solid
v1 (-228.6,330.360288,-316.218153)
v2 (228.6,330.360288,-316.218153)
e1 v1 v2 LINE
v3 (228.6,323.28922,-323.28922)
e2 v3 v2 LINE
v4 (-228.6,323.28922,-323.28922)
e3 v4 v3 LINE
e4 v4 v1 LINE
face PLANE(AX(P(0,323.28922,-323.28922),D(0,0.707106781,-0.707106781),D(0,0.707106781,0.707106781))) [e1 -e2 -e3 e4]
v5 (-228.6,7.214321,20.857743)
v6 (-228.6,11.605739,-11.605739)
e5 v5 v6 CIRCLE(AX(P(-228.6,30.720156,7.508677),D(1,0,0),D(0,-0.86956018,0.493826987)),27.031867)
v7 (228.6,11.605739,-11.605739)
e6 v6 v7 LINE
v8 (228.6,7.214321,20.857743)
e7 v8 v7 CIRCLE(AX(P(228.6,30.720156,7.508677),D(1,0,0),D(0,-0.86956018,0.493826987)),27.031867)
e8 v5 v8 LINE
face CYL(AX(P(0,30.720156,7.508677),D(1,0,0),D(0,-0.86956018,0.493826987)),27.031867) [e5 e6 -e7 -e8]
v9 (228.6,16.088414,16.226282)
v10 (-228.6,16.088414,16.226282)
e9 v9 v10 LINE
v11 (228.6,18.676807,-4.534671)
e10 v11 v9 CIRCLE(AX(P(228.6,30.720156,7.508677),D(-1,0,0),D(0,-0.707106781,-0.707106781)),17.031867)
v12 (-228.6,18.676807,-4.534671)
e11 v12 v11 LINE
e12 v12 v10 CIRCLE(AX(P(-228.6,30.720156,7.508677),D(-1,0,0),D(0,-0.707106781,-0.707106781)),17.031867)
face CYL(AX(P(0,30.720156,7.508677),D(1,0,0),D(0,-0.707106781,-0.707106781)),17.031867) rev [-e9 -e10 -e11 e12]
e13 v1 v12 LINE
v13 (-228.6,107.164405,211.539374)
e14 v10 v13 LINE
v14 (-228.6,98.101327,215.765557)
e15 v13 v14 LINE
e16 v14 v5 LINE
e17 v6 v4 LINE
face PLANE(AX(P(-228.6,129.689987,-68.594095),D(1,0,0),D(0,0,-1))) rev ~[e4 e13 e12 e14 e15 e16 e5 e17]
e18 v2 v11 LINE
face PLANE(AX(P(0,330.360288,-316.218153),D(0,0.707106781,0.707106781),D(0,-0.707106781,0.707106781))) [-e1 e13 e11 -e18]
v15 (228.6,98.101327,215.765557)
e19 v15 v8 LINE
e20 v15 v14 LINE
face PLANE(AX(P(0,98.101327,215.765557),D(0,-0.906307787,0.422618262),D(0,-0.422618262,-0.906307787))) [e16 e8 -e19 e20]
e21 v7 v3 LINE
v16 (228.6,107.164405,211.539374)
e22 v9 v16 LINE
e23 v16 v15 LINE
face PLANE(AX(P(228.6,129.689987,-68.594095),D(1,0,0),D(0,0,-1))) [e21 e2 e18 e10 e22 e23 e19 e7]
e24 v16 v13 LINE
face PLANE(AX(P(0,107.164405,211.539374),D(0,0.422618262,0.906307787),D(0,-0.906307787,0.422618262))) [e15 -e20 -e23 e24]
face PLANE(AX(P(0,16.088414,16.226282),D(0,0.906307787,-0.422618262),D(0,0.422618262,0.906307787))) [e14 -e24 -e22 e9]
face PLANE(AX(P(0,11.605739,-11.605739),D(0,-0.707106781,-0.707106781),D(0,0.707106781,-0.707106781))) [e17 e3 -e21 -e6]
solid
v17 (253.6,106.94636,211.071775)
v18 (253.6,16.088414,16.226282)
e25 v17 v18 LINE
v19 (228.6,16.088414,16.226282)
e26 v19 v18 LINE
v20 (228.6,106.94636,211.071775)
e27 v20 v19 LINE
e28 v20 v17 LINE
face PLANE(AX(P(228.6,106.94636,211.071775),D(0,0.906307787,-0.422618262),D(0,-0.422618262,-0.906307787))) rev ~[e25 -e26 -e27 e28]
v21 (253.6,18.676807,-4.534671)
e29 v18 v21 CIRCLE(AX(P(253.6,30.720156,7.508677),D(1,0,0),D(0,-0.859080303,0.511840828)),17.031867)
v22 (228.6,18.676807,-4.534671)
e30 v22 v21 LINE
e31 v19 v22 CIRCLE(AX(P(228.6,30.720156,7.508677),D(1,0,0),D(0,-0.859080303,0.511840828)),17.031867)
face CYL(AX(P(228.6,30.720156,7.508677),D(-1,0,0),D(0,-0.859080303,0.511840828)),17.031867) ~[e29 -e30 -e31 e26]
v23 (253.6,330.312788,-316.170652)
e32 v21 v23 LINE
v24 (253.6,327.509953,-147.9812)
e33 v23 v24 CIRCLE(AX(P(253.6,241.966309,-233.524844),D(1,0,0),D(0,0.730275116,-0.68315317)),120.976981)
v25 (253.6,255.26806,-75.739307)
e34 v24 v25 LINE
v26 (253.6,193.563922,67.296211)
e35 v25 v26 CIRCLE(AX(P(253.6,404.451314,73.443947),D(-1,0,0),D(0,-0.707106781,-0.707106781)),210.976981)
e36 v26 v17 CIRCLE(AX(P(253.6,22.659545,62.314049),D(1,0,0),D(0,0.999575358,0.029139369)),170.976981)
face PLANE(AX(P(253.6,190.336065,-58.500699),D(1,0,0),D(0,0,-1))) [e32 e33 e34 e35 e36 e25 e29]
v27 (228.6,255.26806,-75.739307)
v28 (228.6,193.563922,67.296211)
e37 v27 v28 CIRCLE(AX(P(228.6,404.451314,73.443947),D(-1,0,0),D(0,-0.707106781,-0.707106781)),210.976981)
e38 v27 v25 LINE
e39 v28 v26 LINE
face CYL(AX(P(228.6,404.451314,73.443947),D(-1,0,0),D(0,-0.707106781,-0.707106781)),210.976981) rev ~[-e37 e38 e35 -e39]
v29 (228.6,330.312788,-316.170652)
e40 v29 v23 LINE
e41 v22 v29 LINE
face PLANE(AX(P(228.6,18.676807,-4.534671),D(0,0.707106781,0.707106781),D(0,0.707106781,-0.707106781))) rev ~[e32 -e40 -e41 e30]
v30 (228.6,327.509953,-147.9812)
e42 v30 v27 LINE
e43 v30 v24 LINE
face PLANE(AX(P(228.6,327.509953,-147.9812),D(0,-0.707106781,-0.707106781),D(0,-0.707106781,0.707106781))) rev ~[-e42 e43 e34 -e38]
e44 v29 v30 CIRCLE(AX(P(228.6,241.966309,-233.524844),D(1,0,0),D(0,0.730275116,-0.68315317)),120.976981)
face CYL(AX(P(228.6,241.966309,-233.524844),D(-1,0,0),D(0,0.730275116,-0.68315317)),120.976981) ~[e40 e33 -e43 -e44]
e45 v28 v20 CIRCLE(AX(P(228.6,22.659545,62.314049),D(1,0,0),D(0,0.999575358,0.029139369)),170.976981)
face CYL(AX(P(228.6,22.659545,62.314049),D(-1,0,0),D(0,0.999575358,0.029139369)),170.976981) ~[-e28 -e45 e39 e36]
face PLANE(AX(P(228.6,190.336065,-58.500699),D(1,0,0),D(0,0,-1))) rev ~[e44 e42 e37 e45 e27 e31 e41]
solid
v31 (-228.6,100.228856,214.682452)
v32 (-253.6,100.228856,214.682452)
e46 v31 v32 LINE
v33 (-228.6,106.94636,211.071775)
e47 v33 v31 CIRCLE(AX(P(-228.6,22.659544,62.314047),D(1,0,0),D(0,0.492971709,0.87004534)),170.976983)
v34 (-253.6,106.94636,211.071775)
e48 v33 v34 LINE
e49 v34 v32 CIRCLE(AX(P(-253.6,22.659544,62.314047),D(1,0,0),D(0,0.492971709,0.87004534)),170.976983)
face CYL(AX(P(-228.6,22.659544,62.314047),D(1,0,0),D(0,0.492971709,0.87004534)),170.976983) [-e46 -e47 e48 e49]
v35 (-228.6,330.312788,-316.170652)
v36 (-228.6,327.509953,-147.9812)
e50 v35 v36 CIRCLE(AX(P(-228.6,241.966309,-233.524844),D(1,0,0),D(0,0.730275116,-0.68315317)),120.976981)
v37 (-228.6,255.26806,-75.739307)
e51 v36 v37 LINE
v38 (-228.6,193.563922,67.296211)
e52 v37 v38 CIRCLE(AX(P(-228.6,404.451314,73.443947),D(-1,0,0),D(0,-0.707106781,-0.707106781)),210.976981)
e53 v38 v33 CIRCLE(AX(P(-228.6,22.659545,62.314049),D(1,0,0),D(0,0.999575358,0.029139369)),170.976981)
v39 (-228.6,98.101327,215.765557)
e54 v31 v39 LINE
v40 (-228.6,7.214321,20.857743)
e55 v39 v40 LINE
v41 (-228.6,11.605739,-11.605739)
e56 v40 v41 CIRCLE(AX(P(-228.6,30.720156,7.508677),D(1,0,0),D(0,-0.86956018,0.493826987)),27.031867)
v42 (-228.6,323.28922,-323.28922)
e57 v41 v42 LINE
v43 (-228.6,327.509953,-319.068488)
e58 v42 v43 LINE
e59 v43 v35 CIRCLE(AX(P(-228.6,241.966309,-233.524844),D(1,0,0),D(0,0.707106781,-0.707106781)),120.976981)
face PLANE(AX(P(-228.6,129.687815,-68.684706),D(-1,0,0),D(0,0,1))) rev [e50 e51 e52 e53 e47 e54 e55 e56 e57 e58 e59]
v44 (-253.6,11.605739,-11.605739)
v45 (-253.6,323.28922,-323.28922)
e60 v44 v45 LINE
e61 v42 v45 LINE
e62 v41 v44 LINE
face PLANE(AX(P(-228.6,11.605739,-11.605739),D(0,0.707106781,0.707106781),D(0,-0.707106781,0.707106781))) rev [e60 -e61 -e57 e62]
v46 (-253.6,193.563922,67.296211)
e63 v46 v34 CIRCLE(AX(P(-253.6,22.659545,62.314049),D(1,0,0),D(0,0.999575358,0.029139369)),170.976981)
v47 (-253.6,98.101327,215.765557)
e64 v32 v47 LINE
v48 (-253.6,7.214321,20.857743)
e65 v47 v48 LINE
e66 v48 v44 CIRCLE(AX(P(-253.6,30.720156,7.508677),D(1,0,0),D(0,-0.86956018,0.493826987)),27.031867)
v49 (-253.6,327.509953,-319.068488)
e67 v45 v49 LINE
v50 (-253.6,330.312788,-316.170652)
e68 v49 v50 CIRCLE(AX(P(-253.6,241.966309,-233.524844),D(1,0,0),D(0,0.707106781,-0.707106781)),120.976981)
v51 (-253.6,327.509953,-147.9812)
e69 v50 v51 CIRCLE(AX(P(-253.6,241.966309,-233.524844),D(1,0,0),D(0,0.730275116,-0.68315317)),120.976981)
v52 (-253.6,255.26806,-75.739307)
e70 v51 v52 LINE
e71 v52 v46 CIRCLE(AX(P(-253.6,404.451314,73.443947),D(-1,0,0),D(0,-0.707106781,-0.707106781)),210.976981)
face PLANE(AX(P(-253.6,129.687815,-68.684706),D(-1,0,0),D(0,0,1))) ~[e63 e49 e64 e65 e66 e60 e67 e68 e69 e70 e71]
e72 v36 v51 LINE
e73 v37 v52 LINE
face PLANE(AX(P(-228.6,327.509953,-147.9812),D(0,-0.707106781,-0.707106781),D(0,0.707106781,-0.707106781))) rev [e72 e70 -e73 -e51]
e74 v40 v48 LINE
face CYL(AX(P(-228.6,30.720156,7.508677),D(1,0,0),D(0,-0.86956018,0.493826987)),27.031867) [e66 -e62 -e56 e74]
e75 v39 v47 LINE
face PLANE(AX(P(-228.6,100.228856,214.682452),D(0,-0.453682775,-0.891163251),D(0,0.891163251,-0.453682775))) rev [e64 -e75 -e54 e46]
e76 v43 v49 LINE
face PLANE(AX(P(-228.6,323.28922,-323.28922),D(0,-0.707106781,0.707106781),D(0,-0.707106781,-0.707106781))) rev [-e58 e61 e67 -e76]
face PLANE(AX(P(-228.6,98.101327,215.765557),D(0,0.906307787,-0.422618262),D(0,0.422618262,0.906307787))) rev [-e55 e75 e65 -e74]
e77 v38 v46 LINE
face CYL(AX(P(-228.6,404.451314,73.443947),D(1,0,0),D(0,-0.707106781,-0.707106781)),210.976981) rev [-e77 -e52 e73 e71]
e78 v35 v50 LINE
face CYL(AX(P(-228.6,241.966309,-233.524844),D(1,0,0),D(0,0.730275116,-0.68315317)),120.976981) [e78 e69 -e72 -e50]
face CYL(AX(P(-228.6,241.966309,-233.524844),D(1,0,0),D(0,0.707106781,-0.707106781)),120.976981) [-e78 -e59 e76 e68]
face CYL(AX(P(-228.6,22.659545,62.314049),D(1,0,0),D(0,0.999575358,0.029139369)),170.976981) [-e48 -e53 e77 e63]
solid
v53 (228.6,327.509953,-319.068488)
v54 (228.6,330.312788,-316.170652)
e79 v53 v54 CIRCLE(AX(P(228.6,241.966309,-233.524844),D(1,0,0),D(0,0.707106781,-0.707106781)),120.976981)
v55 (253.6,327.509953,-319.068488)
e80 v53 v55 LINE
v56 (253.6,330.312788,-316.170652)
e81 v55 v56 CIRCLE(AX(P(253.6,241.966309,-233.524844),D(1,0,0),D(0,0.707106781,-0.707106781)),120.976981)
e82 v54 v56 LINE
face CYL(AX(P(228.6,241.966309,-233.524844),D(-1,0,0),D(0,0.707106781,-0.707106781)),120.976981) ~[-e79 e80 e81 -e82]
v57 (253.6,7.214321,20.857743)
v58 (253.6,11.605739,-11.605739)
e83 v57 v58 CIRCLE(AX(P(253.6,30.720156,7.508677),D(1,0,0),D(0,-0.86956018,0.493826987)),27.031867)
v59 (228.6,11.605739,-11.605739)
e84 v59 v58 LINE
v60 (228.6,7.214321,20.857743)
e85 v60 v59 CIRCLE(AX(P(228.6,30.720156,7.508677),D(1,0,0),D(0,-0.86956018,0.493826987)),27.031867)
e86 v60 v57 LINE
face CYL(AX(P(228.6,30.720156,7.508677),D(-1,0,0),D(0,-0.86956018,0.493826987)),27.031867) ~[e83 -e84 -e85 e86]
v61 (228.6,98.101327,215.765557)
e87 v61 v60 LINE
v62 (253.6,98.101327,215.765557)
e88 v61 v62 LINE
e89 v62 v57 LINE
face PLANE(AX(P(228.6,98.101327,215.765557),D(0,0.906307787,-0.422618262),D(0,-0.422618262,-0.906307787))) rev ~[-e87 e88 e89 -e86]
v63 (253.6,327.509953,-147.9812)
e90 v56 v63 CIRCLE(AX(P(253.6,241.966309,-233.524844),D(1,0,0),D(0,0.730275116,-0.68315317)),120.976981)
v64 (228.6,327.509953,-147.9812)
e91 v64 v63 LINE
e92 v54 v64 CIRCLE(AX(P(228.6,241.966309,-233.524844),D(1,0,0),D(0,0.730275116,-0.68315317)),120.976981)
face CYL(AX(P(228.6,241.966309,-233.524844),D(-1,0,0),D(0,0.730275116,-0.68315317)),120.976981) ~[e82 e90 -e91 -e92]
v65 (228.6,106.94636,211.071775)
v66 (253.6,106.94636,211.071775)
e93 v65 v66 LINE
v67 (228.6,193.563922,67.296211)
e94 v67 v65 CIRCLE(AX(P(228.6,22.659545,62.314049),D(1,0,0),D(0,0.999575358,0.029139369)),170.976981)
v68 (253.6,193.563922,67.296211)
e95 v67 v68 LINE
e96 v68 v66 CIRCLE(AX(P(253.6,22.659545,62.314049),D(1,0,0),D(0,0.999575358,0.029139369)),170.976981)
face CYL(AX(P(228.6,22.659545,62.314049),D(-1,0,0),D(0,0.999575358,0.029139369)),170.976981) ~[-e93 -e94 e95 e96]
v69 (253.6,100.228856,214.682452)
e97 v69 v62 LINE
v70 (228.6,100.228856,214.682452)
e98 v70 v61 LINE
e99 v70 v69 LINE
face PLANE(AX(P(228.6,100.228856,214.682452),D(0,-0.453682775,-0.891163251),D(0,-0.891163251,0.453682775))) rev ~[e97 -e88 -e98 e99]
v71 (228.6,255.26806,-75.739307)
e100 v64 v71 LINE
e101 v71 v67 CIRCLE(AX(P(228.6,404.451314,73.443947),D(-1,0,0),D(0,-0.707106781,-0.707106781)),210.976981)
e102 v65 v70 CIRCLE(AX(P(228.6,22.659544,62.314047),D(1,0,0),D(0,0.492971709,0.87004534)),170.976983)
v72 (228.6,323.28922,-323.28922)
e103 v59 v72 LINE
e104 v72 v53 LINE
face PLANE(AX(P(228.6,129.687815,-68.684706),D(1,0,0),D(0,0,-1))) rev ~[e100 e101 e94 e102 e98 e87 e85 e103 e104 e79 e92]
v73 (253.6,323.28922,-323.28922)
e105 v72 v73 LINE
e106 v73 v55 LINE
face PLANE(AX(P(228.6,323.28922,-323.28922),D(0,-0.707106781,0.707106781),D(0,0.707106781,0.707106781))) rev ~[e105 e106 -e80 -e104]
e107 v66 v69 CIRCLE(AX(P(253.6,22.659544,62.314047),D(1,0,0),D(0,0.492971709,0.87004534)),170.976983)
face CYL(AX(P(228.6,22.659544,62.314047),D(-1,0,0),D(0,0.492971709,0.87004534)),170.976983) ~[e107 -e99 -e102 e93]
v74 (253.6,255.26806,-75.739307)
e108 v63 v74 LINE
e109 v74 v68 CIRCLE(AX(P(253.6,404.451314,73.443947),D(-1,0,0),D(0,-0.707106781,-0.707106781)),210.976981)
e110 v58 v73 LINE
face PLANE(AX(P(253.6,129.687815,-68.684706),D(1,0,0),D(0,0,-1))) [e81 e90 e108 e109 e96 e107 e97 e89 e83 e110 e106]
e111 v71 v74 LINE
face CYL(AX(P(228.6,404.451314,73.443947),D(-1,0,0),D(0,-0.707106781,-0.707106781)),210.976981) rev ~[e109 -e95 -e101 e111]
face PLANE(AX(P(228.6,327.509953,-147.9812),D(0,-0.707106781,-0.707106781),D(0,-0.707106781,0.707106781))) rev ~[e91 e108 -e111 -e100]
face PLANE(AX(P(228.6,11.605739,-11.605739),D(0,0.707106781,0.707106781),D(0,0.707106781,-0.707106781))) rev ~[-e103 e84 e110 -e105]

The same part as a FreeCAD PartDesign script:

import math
import FreeCAD as App
import Part
import Sketcher
from FreeCAD import Vector
Q = App.Units.Quantity

doc = App.newDocument("Part")
body = doc.addObject("PartDesign::Body", "Body")

# Sketch on YZ plane
sketch1 = doc.addObject("Sketcher::SketchObject", "Sketch")
body.addObject(sketch1)
sketch1.AttachmentSupport = (doc.YZ_Plane, [""])
sketch1.MapMode = "FlatFace"
sketch1.addGeometry([
    Part.LineSegment(Vector(98.101327, 215.765557, 0), Vector(7.214321, 20.857743, 0)),  # 0
    Part.ArcOfCircle(Part.Circle(Vector(30.720156, 7.508677, 0), Vector(0, 0, 1), 27.031867), math.radians(150.40757), math.radians(225)),  # 1
    Part.LineSegment(Vector(11.605739, -11.605739, 0), Vector(323.28922, -323.28922, 0)),  # 2
    Part.LineSegment(Vector(323.28922, -323.28922, 0), Vector(330.360288, -316.218153, 0)),  # 3
    Part.LineSegment(Vector(330.360288, -316.218153, 0), Vector(18.676807, -4.534671, 0)),  # 4
    Part.ArcOfCircle(Part.Circle(Vector(30.720156, 7.508677, 0), Vector(0, 0, 1), 17.031867), math.radians(149.213476), math.radians(225)),  # 5
    Part.LineSegment(Vector(16.088414, 16.226282, 0), Vector(107.164405, 211.539374, 0)),  # 6
    Part.LineSegment(Vector(107.164405, 211.539374, 0), Vector(98.101327, 215.765557, 0)),  # 7
], False)
sketch1.addConstraint([
    Sketcher.Constraint("Coincident", 0, 2, 1, 1),
    Sketcher.Constraint("Tangent", 1, 2, 2, 1),
    Sketcher.Constraint("Coincident", 2, 2, 3, 1),
    Sketcher.Constraint("Coincident", 3, 2, 4, 1),
    Sketcher.Constraint("Tangent", 4, 2, 5, 2),
    Sketcher.Constraint("Coincident", 5, 1, 6, 1),
    Sketcher.Constraint("Coincident", 6, 2, 7, 1),
    Sketcher.Constraint("Coincident", 7, 2, 0, 1),
    Sketcher.Constraint("Coincident", 5, 3, 1, 3),
    Sketcher.Constraint("Perpendicular", 2, 3),
    Sketcher.Constraint("Perpendicular", 3, 4),
    Sketcher.Constraint("Parallel", 0, 6),
    Sketcher.Constraint("Perpendicular", 6, 7),
    Sketcher.Constraint("Equal", 3, 7),
    Sketcher.Constraint("Angle", 0, Q("-115 deg")),
    Sketcher.Constraint("Angle", 2, Q("-45 deg")),
    Sketcher.Constraint("Distance", 3, 10.0),
    Sketcher.Constraint("Radius", 1, 27.031867),
    Sketcher.Constraint("DistanceX", 0, 2, 2, 2, 316.0749),
    Sketcher.Constraint("Distance", 0, 215.056978),
    Sketcher.Constraint("DistanceX", -1, 1, 0, 2, 7.214321),
    Sketcher.Constraint("DistanceX", -1, 1, 1, 2, 11.605739),
    Sketcher.Constraint("DistanceY", 1, 2, -1, 1, 11.605739),
])
pad1 = doc.addObject("PartDesign::Pad", "Pad")
body.addObject(pad1)
pad1.Profile = sketch1
pad1.Length = 457.2
pad1.Midplane = True
body2 = doc.addObject("PartDesign::Body", "Body001")

# Sketch on YZ plane
sketch2 = doc.addObject("Sketcher::SketchObject", "Sketch001")
body2.addObject(sketch2)
sketch2.AttachmentSupport = (doc.getObject("YZ_Plane001"), [""])
sketch2.MapMode = "FlatFace"
sketch2.AttachmentOffset = App.Placement(Vector(0, 0, 228.6), App.Rotation())
sketch2.addGeometry([
    Part.LineSegment(Vector(18.676807, -4.534671, 0), Vector(330.312788, -316.170652, 0)),  # 0
    Part.ArcOfCircle(Part.Circle(Vector(241.966309, -233.524844, 0), Vector(0, 0, 1), 120.976981), math.radians(-43.090537), math.radians(45)),  # 1
    Part.LineSegment(Vector(327.509953, -147.9812, 0), Vector(255.26806, -75.739307, 0)),  # 2
    Part.ArcOfCircle(Part.Circle(Vector(404.451314, 73.443947, 0), Vector(0, 0, 1), 210.976981), math.radians(-178.330201), math.radians(-135)),  # 3
    Part.ArcOfCircle(Part.Circle(Vector(22.659545, 62.314049, 0), Vector(0, 0, 1), 170.976981), math.radians(1.669799), math.radians(60.463909)),  # 4
    Part.LineSegment(Vector(106.94636, 211.071775, 0), Vector(16.088414, 16.226282, 0)),  # 5
    Part.ArcOfCircle(Part.Circle(Vector(30.720156, 7.508677, 0), Vector(0, 0, 1), 17.031867), math.radians(149.213476), math.radians(225)),  # 6
], False)
sketch2.addConstraint([
    Sketcher.Constraint("Coincident", 0, 2, 1, 1),
    Sketcher.Constraint("Tangent", 1, 2, 2, 1),
    Sketcher.Constraint("Tangent", 2, 2, 3, 2),
    Sketcher.Constraint("Tangent", 3, 1, 4, 1),
    Sketcher.Constraint("Coincident", 4, 2, 5, 1),
    Sketcher.Constraint("Coincident", 5, 2, 6, 1),
    Sketcher.Constraint("Tangent", 6, 2, 0, 1),
    Sketcher.Constraint("Parallel", 0, 2),
    Sketcher.Constraint("Angle", 0, Q("-45 deg")),
    Sketcher.Constraint("Angle", 5, Q("-115 deg")),
    Sketcher.Constraint("Radius", 1, 120.976981),
    Sketcher.Constraint("Radius", 3, 210.976981),
    Sketcher.Constraint("Radius", 4, 170.976981),
    Sketcher.Constraint("Radius", 6, 17.031867),
    Sketcher.Constraint("DistanceY", 1, 2, -1, 1, 147.9812),
    Sketcher.Constraint("DistanceY", 0, 2, 3, 3, 389.614599),
    Sketcher.Constraint("DistanceY", 0, 2, 4, 3, 378.484702),
    Sketcher.Constraint("DistanceX", 4, 2, 2, 2, 148.3217),
    Sketcher.Constraint("Distance", 0, 440.719831),
    Sketcher.Constraint("DistanceX", -1, 1, 1, 3, 241.966309),
    Sketcher.Constraint("DistanceY", -1, 1, 4, 3, 62.314049),
])
pad2 = doc.addObject("PartDesign::Pad", "Pad001")
body2.addObject(pad2)
pad2.Profile = sketch2
pad2.Length = 25
body3 = doc.addObject("PartDesign::Body", "Body002")

# Sketch on YZ plane
sketch3 = doc.addObject("Sketcher::SketchObject", "Sketch002")
body3.addObject(sketch3)
sketch3.AttachmentSupport = (doc.getObject("YZ_Plane002"), [""])
sketch3.MapMode = "FlatFace"
sketch3.AttachmentOffset = App.Placement(Vector(0, 0, 228.6), App.Rotation())
sketch3.addGeometry([
    Part.ArcOfCircle(Part.Circle(Vector(30.720156, 7.508677, 0), Vector(0, 0, 1), 27.031867), math.radians(150.40757), math.radians(225)),  # 0
    Part.LineSegment(Vector(11.605739, -11.605739, 0), Vector(323.28922, -323.28922, 0)),  # 1
    Part.LineSegment(Vector(323.28922, -323.28922, 0), Vector(327.509953, -319.068488, 0)),  # 2
    Part.ArcOfCircle(Part.Circle(Vector(241.966309, -233.524844, 0), Vector(0, 0, 1), 120.976981), math.radians(-45), math.radians(-43.090537)),  # 3
    Part.ArcOfCircle(Part.Circle(Vector(241.966309, -233.524844, 0), Vector(0, 0, 1), 120.976981), math.radians(-43.090537), math.radians(45)),  # 4
    Part.LineSegment(Vector(327.509953, -147.9812, 0), Vector(255.26806, -75.739307, 0)),  # 5
    Part.ArcOfCircle(Part.Circle(Vector(404.451314, 73.443947, 0), Vector(0, 0, 1), 210.976981), math.radians(-178.330201), math.radians(-135)),  # 6
    Part.ArcOfCircle(Part.Circle(Vector(22.659545, 62.314049, 0), Vector(0, 0, 1), 170.976981), math.radians(1.669799), math.radians(60.463909)),  # 7
    Part.ArcOfCircle(Part.Circle(Vector(22.659544, 62.314047, 0), Vector(0, 0, 1), 170.976983), math.radians(60.463909), math.radians(63.019786)),  # 8
    Part.LineSegment(Vector(100.228856, 214.682452, 0), Vector(98.101327, 215.765557, 0)),  # 9
    Part.LineSegment(Vector(98.101327, 215.765557, 0), Vector(7.214321, 20.857743, 0)),  # 10
], False)
sketch3.addConstraint([
    Sketcher.Constraint("Tangent", 0, 2, 1, 1),
    Sketcher.Constraint("Coincident", 1, 2, 2, 1),
    Sketcher.Constraint("Tangent", 2, 2, 3, 1),
    Sketcher.Constraint("Tangent", 3, 2, 4, 1),
    Sketcher.Constraint("Tangent", 4, 2, 5, 1),
    Sketcher.Constraint("Tangent", 5, 2, 6, 2),
    Sketcher.Constraint("Tangent", 6, 1, 7, 1),
    Sketcher.Constraint("Tangent", 7, 2, 8, 1),
    Sketcher.Constraint("Tangent", 8, 2, 9, 1),
    Sketcher.Constraint("Coincident", 9, 2, 10, 1),
    Sketcher.Constraint("Coincident", 10, 2, 0, 1),
    Sketcher.Constraint("Equal", 3, 4),
    Sketcher.Constraint("Perpendicular", 1, 2),
    Sketcher.Constraint("Perpendicular", 2, 5),
    Sketcher.Constraint("Vertical", 2, 2, 4, 2),
    Sketcher.Constraint("Angle", 10, Q("-115 deg")),
    Sketcher.Constraint("Radius", 3, 120.976981),
    Sketcher.Constraint("Radius", 6, 210.976981),
    Sketcher.Constraint("Radius", 7, 170.976981),
    Sketcher.Constraint("Radius", 0, 27.031867),
    Sketcher.Constraint("Radius", 8, 170.976983),
    Sketcher.Constraint("DistanceY", 4, 2, -1, 1, 147.9812),
    Sketcher.Constraint("DistanceY", 8, 3, 6, 3, 11.1299),
    Sketcher.Constraint("DistanceY", 3, 2, 6, 3, 389.614599),
    Sketcher.Constraint("DistanceX", 0, 3, 8, 2, 69.508701),
    Sketcher.Constraint("DistanceX", 10, 2, 6, 1, 186.349602),
    Sketcher.Constraint("Distance", 10, 215.056978),
    Sketcher.Constraint("DistanceX", -1, 1, 3, 3, 241.966309),
    Sketcher.Constraint("DistanceY", -1, 1, 7, 3, 62.314049),
    Sketcher.Constraint("DistanceX", -1, 1, 0, 2, 11.605739),
    Sketcher.Constraint("DistanceX", -1, 1, 7, 2, 106.94636),
])
pad3 = doc.addObject("PartDesign::Pad", "Pad002")
body3.addObject(pad3)
pad3.Profile = sketch3
pad3.Length = 25
body4 = doc.addObject("PartDesign::Body", "Body003")
doc.recompute()

mirroring = doc.addObject("Part::Mirroring", "Mirroring")
mirroring.Source = body3
mirroring.Base = Vector(0, 0, 0)
mirroring.Normal = Vector(1, 0, 0)
body4.BaseFeature = mirroring
doc.recompute()
mirroring.Visibility = False

doc.recompute()
